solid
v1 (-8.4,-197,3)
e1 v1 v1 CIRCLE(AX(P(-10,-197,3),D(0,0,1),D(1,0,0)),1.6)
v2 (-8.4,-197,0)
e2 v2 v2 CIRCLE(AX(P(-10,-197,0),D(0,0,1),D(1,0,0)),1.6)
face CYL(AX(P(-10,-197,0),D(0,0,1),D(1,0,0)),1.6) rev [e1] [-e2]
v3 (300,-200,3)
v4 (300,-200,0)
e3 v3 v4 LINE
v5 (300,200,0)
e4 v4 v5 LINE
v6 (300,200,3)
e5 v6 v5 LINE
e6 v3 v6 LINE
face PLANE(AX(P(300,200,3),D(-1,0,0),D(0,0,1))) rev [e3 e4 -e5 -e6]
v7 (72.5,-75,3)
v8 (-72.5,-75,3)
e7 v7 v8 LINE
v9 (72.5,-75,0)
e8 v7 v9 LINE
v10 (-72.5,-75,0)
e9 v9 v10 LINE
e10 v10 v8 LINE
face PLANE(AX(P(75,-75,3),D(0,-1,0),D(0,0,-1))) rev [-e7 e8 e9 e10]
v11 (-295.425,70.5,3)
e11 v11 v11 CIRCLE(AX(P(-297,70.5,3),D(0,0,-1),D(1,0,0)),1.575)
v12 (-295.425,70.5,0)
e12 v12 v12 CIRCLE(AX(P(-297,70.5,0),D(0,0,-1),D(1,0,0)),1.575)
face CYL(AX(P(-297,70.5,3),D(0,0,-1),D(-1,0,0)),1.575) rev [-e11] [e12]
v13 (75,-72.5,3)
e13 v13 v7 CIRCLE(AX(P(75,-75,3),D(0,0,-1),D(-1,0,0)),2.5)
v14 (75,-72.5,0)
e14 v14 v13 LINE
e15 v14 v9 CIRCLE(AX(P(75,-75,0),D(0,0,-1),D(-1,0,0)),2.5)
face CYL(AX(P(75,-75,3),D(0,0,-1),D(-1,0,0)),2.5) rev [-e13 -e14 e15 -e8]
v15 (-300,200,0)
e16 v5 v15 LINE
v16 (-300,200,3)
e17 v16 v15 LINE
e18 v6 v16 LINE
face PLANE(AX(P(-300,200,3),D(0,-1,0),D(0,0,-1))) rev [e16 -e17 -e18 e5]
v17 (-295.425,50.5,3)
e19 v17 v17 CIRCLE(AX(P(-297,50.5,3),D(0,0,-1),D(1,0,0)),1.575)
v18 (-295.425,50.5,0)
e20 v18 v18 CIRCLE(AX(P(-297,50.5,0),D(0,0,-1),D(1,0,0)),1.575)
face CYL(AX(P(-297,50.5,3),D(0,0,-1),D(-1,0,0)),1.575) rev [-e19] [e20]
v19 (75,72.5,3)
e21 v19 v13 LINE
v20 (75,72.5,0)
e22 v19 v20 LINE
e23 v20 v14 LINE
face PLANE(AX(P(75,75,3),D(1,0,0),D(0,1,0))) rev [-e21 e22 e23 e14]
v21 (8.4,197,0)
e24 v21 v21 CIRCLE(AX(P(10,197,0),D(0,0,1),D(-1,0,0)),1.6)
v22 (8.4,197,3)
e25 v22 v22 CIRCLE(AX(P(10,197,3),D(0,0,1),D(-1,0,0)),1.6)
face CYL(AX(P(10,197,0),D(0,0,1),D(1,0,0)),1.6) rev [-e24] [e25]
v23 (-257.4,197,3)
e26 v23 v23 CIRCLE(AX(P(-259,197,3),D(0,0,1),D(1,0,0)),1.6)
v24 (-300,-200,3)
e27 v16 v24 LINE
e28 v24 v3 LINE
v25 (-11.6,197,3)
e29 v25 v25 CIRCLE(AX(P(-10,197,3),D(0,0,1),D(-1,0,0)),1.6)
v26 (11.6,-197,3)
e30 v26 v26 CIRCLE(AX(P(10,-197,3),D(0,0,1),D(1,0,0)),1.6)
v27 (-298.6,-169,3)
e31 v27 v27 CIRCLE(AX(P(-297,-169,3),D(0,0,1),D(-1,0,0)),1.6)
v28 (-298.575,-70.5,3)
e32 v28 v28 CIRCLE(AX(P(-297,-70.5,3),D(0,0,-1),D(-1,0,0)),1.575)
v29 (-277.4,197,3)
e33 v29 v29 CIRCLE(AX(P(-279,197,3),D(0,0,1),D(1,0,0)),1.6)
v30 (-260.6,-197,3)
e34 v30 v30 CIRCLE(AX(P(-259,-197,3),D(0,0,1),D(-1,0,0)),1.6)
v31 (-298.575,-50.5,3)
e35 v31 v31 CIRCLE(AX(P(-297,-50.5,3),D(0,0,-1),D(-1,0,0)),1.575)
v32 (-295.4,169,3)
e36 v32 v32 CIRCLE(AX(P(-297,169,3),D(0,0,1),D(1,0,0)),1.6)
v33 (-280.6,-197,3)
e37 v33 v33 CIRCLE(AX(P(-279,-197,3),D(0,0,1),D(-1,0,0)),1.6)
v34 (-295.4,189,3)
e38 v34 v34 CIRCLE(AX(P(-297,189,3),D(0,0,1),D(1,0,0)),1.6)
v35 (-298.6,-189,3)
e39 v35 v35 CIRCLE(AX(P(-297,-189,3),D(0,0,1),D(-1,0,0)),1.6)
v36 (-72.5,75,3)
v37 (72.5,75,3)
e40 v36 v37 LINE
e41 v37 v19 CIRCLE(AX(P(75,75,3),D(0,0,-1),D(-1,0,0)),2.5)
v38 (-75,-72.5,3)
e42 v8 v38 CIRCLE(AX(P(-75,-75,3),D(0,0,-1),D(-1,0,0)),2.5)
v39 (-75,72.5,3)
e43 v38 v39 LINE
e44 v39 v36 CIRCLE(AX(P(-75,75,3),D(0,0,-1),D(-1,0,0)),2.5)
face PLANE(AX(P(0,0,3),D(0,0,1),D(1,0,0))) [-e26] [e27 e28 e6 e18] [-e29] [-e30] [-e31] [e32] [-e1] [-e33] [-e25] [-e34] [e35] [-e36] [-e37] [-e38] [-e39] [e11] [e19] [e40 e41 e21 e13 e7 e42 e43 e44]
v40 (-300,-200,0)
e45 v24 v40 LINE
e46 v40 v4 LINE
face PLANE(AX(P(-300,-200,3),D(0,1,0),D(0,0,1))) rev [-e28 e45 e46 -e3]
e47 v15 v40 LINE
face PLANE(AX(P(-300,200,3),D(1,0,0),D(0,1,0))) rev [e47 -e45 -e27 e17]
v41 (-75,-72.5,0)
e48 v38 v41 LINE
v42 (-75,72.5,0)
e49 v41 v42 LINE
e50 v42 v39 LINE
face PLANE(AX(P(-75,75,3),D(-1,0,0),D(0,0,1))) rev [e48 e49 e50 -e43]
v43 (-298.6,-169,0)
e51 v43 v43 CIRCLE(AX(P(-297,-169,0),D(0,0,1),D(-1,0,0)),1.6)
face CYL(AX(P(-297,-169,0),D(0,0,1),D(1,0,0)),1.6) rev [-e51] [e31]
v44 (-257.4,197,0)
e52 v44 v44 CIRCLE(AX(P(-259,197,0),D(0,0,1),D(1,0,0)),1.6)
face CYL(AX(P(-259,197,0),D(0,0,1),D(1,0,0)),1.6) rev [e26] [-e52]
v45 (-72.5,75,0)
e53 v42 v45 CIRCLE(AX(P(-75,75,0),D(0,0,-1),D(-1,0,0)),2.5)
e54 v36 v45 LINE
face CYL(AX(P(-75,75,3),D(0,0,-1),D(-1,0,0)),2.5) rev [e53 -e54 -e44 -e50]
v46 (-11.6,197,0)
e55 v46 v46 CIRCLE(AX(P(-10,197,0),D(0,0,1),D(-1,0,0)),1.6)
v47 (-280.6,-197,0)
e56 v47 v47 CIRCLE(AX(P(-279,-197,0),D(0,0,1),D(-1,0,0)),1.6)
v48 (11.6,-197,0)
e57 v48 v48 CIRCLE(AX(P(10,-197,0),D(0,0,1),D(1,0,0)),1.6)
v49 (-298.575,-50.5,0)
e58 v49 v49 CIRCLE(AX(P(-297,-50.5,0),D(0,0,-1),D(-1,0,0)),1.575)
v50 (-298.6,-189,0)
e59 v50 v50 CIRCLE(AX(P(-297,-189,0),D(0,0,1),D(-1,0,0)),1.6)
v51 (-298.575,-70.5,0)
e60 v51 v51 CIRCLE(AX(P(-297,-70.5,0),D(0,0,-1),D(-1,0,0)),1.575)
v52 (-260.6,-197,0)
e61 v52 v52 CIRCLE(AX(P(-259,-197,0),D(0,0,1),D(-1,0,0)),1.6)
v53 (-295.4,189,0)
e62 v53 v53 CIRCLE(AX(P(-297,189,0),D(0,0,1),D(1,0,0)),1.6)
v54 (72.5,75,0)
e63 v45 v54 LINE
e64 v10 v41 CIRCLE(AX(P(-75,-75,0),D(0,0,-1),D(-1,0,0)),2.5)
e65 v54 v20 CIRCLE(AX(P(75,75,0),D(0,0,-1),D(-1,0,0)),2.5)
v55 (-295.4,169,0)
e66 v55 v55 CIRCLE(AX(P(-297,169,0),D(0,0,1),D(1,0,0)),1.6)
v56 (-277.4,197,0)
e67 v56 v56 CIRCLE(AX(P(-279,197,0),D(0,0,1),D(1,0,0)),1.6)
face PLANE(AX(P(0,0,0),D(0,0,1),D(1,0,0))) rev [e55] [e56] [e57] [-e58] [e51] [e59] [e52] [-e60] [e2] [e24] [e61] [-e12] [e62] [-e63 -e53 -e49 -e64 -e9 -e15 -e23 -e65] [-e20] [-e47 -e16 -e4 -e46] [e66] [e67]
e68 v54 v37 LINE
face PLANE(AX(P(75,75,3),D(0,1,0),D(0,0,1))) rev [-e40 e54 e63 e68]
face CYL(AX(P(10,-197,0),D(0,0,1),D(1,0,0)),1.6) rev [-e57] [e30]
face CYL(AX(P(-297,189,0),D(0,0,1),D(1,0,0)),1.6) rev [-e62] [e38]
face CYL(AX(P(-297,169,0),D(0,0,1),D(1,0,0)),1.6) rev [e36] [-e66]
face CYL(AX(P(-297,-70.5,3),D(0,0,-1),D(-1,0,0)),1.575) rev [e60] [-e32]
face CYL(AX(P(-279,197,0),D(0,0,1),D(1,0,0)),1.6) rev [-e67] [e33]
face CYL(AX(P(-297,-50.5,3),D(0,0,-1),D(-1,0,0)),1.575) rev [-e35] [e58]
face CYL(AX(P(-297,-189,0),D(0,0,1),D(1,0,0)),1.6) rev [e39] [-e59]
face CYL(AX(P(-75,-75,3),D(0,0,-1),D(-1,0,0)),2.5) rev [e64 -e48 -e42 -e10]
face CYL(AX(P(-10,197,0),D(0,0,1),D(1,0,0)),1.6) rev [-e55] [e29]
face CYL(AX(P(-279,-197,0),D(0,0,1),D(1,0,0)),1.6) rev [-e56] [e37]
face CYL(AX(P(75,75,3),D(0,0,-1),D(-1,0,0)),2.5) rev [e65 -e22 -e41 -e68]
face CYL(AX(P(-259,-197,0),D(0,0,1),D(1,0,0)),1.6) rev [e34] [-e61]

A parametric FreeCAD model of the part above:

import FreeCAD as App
import Part
import Sketcher
from FreeCAD import Vector
Q = App.Units.Quantity


def add_polygon(sketch, points):
    """Adds a closed chain of lines whose ends are joined by coincident constraints."""
    first, n = sketch.GeometryCount, len(points)
    for a, b in zip(points, points[1:] + points[:1]):
        sketch.addGeometry(Part.LineSegment(App.Vector(*a, 0), App.Vector(*b, 0)), False)
    for i in range(n):
        sketch.addConstraint(Sketcher.Constraint("Coincident", first + i, 2, first + (i + 1) % n, 1))

doc = App.newDocument("Part")
body = doc.addObject("PartDesign::Body", "Body")

# Sketch on XY plane
sketch1 = body.newObject("Sketcher::SketchObject", "Sketch")
sketch1.AttachmentSupport = (doc.getObject("XY_Plane"), [""])
sketch1.MapMode = "FlatFace"
add_polygon(sketch1, [(-300, 200), (-300, -200), (300, -200), (300, 200)])  # lines 0-3
sketch1.addConstraint(Sketcher.Constraint("Vertical", 0))
sketch1.addConstraint(Sketcher.Constraint("Horizontal", 1))
sketch1.addConstraint(Sketcher.Constraint("Vertical", 2))
sketch1.addConstraint(Sketcher.Constraint("Horizontal", 3))
sketch1.addConstraint(Sketcher.Constraint("Symmetric", 0, 2, 2, 2, -1, 1))
sketch1.addConstraint(Sketcher.Constraint("DistanceX", 1, 1, 1, 2, Q("600 mm")))
sketch1.addConstraint(Sketcher.Constraint("DistanceY", 0, 2, 0, 1, Q("400 mm")))
pad1 = body.newObject("PartDesign::Pad", "Pad")
pad1.Profile = sketch1
pad1.Length = 3

# Sketch on XY plane
sketch2 = body.newObject("Sketcher::SketchObject", "Sketch001")
sketch2.AttachmentSupport = (doc.getObject("XY_Plane"), [""])
sketch2.MapMode = "FlatFace"
sketch2.AttachmentOffset = App.Placement(Vector(0, 0, 3), App.Rotation())
sketch2.addGeometry(Part.Circle(Vector(-10, -197, 0), Vector(0, 0, 1), 1.6), False)
sketch2.addGeometry(Part.Circle(Vector(10, -197, 0), Vector(0, 0, 1), 1.6), False)
sketch2.addGeometry(Part.Circle(Vector(10, 197, 0), Vector(0, 0, 1), 1.6), False)
sketch2.addGeometry(Part.Circle(Vector(-10, 197, 0), Vector(0, 0, 1), 1.6), False)
sketch2.addConstraint(Sketcher.Constraint("Equal", 0, 1))
sketch2.addConstraint(Sketcher.Constraint("Equal", 1, 2))
sketch2.addConstraint(Sketcher.Constraint("Equal", 2, 3))
sketch2.addConstraint(Sketcher.Constraint("Symmetric", 0, 3, 2, 3, -1, 1))
sketch2.addConstraint(Sketcher.Constraint("Symmetric", 1, 3, 3, 3, -1, 1))
sketch2.addConstraint(Sketcher.Constraint("Symmetric", 0, 3, 1, 3, -2))
sketch2.addConstraint(Sketcher.Constraint("Diameter", 0, Q("3.2 mm")))
sketch2.addConstraint(Sketcher.Constraint("DistanceX", 0, 3, -1, 1, Q("10 mm")))
sketch2.addConstraint(Sketcher.Constraint("DistanceY", 0, 3, -1, 1, Q("197 mm")))
pocket1 = body.newObject("PartDesign::Pocket", "Pocket")
pocket1.Profile = sketch2
pocket1.Type = "ThroughAll"

# Sketch on XY plane
sketch3 = body.newObject("Sketcher::SketchObject", "Sketch002")
sketch3.AttachmentSupport = (doc.getObject("XY_Plane"), [""])
sketch3.MapMode = "FlatFace"
sketch3.AttachmentOffset = App.Placement(Vector(0, 0, 3), App.Rotation())
sketch3.addGeometry(Part.Circle(Vector(-297, 169, 0), Vector(0, 0, 1), 1.6), False)
sketch3.addGeometry(Part.Circle(Vector(-297, 189, 0), Vector(0, 0, 1), 1.6), False)
sketch3.addGeometry(Part.Circle(Vector(-279, 197, 0), Vector(0, 0, 1), 1.6), False)
sketch3.addGeometry(Part.Circle(Vector(-259, 197, 0), Vector(0, 0, 1), 1.6), False)
sketch3.addGeometry(Part.Circle(Vector(-259, -197, 0), Vector(0, 0, 1), 1.6), False)
sketch3.addGeometry(Part.Circle(Vector(-279, -197, 0), Vector(0, 0, 1), 1.6), False)
sketch3.addGeometry(Part.Circle(Vector(-297, -189, 0), Vector(0, 0, 1), 1.6), False)
sketch3.addGeometry(Part.Circle(Vector(-297, -169, 0), Vector(0, 0, 1), 1.6), False)
sketch3.addConstraint(Sketcher.Constraint("Equal", 0, 1))
sketch3.addConstraint(Sketcher.Constraint("Equal", 1, 2))
sketch3.addConstraint(Sketcher.Constraint("Equal", 2, 3))
sketch3.addConstraint(Sketcher.Constraint("Equal", 3, 4))
sketch3.addConstraint(Sketcher.Constraint("Equal", 4, 5))
sketch3.addConstraint(Sketcher.Constraint("Equal", 5, 6))
sketch3.addConstraint(Sketcher.Constraint("Equal", 6, 7))
sketch3.addConstraint(Sketcher.Constraint("Symmetric", 3, 3, 4, 3, -1))
sketch3.addConstraint(Sketcher.Constraint("Symmetric", 2, 3, 5, 3, -1))
sketch3.addConstraint(Sketcher.Constraint("Symmetric", 1, 3, 6, 3, -1))
sketch3.addConstraint(Sketcher.Constraint("Symmetric", 0, 3, 7, 3, -1))
sketch3.addConstraint(Sketcher.Constraint("Horizontal", 2, 3, 3, 3))
sketch3.addConstraint(Sketcher.Constraint("Vertical", 0, 3, 1, 3))
sketch3.addConstraint(Sketcher.Constraint("Diameter", 0, Q("3.2 mm")))
sketch3.addConstraint(Sketcher.Constraint("DistanceX", 0, 3, -1, 1, Q("297 mm")))
sketch3.addConstraint(Sketcher.Constraint("DistanceY", -1, 1, 0, 3, Q("169 mm")))
sketch3.addConstraint(Sketcher.Constraint("DistanceY", -1, 1, 1, 3, Q("189 mm")))
sketch3.addConstraint(Sketcher.Constraint("DistanceX", 2, 3, -1, 1, Q("279 mm")))
sketch3.addConstraint(Sketcher.Constraint("DistanceY", -1, 1, 2, 3, Q("197 mm")))
sketch3.addConstraint(Sketcher.Constraint("DistanceX", 3, 3, -1, 1, Q("259 mm")))
pocket2 = body.newObject("PartDesign::Pocket", "Pocket001")
pocket2.Profile = sketch3
pocket2.Type = "ThroughAll"

# Sketch on XY plane
sketch4 = body.newObject("Sketcher::SketchObject", "Sketch003")
sketch4.AttachmentSupport = (doc.getObject("XY_Plane"), [""])
sketch4.MapMode = "FlatFace"
add_polygon(sketch4, [(75, 75), (75, -75), (-75, -75), (-75, 75)])  # lines 0-3
sketch4.addConstraint(Sketcher.Constraint("Vertical", 0))
sketch4.addConstraint(Sketcher.Constraint("Horizontal", 1))
sketch4.addConstraint(Sketcher.Constraint("Vertical", 2))
sketch4.addConstraint(Sketcher.Constraint("Horizontal", 3))
sketch4.addConstraint(Sketcher.Constraint("Symmetric", 0, 2, 2, 2, -1, 1))
sketch4.addConstraint(Sketcher.Constraint("Equal", 3, 0))
sketch4.addConstraint(Sketcher.Constraint("DistanceX", 1, 2, 1, 1, Q("150 mm")))
pocket3 = body.newObject("PartDesign::Pocket", "Pocket002")
pocket3.Profile = sketch4
pocket3.Type = "ThroughAll"
pocket3.Reversed = True

# Sketch on XY plane
sketch5 = body.newObject("Sketcher::SketchObject", "Sketch004")
sketch5.AttachmentSupport = (doc.getObject("XY_Plane"), [""])
sketch5.MapMode = "FlatFace"
sketch5.addGeometry(Part.Circle(Vector(-75, 75, 0), Vector(0, 0, 1), 2.5), False)
sketch5.addGeometry(Part.Circle(Vector(-75, -75, 0), Vector(0, 0, 1), 2.5), False)
sketch5.addGeometry(Part.Circle(Vector(75, -75, 0), Vector(0, 0, 1), 2.5), False)
sketch5.addGeometry(Part.Circle(Vector(75, 75, 0), Vector(0, 0, 1), 2.5), False)
sketch5.addConstraint(Sketcher.Constraint("Equal", 0, 1))
sketch5.addConstraint(Sketcher.Constraint("Equal", 1, 2))
sketch5.addConstraint(Sketcher.Constraint("Equal", 2, 3))
sketch5.addConstraint(Sketcher.Constraint("Symmetric", 0, 3, 2, 3, -1, 1))
sketch5.addConstraint(Sketcher.Constraint("Symmetric", 1, 3, 3, 3, -1, 1))
sketch5.addConstraint(Sketcher.Constraint("Symmetric", 1, 3, 2, 3, -2))
sketch5.addConstraint(Sketcher.Constraint("Diameter", 0, Q("5 mm")))
sketch5.addConstraint(Sketcher.Constraint("DistanceX", 0, 3, -1, 1, Q("75 mm")))
sketch5.addConstraint(Sketcher.Constraint("DistanceY", -1, 1, 0, 3, Q("75 mm")))
pocket4 = body.newObject("PartDesign::Pocket", "Pocket003")
pocket4.Profile = sketch5
pocket4.Type = "ThroughAll"
pocket4.Reversed = True

# Sketch on XY plane
sketch6 = body.newObject("Sketcher::SketchObject", "Sketch005")
sketch6.AttachmentSupport = (doc.getObject("XY_Plane"), [""])
sketch6.MapMode = "FlatFace"
sketch6.addGeometry(Part.Circle(Vector(-297, -50.5, 0), Vector(0, 0, 1), 1.6), False)
sketch6.addGeometry(Part.Circle(Vector(-297, -70.5, 0), Vector(0, 0, 1), 1.6), False)
sketch6.addGeometry(Part.Circle(Vector(-297, 70.5, 0), Vector(0, 0, 1), 1.6), False)
sketch6.addGeometry(Part.Circle(Vector(-297, 50.5, 0), Vector(0, 0, 1), 1.6), False)
sketch6.addConstraint(Sketcher.Constraint("Equal", 0, 1))
sketch6.addConstraint(Sketcher.Constraint("Equal", 1, 2))
sketch6.addConstraint(Sketcher.Constraint("Equal", 2, 3))
sketch6.addConstraint(Sketcher.Constraint("Symmetric", 1, 3, 2, 3, -1))
sketch6.addConstraint(Sketcher.Constraint("Symmetric", 0, 3, 3, 3, -1))
sketch6.addConstraint(Sketcher.Constraint("Vertical", 0, 3, 1, 3))
sketch6.addConstraint(Sketcher.Constraint("Diameter", 0, Q("3.15 mm")))
sketch6.addConstraint(Sketcher.Constraint("DistanceX", 0, 3, -1, 1, Q("297 mm")))
sketch6.addConstraint(Sketcher.Constraint("DistanceY", 1, 3, 0, 3, Q("20 mm")))
sketch6.addConstraint(Sketcher.Constraint("DistanceY", 0, 3, 2, 3, Q("121 mm")))
pocket5 = body.newObject("PartDesign::Pocket", "Pocket004")
pocket5.Profile = sketch6
pocket5.Type = "ThroughAll"
pocket5.Reversed = True

doc.recompute()
